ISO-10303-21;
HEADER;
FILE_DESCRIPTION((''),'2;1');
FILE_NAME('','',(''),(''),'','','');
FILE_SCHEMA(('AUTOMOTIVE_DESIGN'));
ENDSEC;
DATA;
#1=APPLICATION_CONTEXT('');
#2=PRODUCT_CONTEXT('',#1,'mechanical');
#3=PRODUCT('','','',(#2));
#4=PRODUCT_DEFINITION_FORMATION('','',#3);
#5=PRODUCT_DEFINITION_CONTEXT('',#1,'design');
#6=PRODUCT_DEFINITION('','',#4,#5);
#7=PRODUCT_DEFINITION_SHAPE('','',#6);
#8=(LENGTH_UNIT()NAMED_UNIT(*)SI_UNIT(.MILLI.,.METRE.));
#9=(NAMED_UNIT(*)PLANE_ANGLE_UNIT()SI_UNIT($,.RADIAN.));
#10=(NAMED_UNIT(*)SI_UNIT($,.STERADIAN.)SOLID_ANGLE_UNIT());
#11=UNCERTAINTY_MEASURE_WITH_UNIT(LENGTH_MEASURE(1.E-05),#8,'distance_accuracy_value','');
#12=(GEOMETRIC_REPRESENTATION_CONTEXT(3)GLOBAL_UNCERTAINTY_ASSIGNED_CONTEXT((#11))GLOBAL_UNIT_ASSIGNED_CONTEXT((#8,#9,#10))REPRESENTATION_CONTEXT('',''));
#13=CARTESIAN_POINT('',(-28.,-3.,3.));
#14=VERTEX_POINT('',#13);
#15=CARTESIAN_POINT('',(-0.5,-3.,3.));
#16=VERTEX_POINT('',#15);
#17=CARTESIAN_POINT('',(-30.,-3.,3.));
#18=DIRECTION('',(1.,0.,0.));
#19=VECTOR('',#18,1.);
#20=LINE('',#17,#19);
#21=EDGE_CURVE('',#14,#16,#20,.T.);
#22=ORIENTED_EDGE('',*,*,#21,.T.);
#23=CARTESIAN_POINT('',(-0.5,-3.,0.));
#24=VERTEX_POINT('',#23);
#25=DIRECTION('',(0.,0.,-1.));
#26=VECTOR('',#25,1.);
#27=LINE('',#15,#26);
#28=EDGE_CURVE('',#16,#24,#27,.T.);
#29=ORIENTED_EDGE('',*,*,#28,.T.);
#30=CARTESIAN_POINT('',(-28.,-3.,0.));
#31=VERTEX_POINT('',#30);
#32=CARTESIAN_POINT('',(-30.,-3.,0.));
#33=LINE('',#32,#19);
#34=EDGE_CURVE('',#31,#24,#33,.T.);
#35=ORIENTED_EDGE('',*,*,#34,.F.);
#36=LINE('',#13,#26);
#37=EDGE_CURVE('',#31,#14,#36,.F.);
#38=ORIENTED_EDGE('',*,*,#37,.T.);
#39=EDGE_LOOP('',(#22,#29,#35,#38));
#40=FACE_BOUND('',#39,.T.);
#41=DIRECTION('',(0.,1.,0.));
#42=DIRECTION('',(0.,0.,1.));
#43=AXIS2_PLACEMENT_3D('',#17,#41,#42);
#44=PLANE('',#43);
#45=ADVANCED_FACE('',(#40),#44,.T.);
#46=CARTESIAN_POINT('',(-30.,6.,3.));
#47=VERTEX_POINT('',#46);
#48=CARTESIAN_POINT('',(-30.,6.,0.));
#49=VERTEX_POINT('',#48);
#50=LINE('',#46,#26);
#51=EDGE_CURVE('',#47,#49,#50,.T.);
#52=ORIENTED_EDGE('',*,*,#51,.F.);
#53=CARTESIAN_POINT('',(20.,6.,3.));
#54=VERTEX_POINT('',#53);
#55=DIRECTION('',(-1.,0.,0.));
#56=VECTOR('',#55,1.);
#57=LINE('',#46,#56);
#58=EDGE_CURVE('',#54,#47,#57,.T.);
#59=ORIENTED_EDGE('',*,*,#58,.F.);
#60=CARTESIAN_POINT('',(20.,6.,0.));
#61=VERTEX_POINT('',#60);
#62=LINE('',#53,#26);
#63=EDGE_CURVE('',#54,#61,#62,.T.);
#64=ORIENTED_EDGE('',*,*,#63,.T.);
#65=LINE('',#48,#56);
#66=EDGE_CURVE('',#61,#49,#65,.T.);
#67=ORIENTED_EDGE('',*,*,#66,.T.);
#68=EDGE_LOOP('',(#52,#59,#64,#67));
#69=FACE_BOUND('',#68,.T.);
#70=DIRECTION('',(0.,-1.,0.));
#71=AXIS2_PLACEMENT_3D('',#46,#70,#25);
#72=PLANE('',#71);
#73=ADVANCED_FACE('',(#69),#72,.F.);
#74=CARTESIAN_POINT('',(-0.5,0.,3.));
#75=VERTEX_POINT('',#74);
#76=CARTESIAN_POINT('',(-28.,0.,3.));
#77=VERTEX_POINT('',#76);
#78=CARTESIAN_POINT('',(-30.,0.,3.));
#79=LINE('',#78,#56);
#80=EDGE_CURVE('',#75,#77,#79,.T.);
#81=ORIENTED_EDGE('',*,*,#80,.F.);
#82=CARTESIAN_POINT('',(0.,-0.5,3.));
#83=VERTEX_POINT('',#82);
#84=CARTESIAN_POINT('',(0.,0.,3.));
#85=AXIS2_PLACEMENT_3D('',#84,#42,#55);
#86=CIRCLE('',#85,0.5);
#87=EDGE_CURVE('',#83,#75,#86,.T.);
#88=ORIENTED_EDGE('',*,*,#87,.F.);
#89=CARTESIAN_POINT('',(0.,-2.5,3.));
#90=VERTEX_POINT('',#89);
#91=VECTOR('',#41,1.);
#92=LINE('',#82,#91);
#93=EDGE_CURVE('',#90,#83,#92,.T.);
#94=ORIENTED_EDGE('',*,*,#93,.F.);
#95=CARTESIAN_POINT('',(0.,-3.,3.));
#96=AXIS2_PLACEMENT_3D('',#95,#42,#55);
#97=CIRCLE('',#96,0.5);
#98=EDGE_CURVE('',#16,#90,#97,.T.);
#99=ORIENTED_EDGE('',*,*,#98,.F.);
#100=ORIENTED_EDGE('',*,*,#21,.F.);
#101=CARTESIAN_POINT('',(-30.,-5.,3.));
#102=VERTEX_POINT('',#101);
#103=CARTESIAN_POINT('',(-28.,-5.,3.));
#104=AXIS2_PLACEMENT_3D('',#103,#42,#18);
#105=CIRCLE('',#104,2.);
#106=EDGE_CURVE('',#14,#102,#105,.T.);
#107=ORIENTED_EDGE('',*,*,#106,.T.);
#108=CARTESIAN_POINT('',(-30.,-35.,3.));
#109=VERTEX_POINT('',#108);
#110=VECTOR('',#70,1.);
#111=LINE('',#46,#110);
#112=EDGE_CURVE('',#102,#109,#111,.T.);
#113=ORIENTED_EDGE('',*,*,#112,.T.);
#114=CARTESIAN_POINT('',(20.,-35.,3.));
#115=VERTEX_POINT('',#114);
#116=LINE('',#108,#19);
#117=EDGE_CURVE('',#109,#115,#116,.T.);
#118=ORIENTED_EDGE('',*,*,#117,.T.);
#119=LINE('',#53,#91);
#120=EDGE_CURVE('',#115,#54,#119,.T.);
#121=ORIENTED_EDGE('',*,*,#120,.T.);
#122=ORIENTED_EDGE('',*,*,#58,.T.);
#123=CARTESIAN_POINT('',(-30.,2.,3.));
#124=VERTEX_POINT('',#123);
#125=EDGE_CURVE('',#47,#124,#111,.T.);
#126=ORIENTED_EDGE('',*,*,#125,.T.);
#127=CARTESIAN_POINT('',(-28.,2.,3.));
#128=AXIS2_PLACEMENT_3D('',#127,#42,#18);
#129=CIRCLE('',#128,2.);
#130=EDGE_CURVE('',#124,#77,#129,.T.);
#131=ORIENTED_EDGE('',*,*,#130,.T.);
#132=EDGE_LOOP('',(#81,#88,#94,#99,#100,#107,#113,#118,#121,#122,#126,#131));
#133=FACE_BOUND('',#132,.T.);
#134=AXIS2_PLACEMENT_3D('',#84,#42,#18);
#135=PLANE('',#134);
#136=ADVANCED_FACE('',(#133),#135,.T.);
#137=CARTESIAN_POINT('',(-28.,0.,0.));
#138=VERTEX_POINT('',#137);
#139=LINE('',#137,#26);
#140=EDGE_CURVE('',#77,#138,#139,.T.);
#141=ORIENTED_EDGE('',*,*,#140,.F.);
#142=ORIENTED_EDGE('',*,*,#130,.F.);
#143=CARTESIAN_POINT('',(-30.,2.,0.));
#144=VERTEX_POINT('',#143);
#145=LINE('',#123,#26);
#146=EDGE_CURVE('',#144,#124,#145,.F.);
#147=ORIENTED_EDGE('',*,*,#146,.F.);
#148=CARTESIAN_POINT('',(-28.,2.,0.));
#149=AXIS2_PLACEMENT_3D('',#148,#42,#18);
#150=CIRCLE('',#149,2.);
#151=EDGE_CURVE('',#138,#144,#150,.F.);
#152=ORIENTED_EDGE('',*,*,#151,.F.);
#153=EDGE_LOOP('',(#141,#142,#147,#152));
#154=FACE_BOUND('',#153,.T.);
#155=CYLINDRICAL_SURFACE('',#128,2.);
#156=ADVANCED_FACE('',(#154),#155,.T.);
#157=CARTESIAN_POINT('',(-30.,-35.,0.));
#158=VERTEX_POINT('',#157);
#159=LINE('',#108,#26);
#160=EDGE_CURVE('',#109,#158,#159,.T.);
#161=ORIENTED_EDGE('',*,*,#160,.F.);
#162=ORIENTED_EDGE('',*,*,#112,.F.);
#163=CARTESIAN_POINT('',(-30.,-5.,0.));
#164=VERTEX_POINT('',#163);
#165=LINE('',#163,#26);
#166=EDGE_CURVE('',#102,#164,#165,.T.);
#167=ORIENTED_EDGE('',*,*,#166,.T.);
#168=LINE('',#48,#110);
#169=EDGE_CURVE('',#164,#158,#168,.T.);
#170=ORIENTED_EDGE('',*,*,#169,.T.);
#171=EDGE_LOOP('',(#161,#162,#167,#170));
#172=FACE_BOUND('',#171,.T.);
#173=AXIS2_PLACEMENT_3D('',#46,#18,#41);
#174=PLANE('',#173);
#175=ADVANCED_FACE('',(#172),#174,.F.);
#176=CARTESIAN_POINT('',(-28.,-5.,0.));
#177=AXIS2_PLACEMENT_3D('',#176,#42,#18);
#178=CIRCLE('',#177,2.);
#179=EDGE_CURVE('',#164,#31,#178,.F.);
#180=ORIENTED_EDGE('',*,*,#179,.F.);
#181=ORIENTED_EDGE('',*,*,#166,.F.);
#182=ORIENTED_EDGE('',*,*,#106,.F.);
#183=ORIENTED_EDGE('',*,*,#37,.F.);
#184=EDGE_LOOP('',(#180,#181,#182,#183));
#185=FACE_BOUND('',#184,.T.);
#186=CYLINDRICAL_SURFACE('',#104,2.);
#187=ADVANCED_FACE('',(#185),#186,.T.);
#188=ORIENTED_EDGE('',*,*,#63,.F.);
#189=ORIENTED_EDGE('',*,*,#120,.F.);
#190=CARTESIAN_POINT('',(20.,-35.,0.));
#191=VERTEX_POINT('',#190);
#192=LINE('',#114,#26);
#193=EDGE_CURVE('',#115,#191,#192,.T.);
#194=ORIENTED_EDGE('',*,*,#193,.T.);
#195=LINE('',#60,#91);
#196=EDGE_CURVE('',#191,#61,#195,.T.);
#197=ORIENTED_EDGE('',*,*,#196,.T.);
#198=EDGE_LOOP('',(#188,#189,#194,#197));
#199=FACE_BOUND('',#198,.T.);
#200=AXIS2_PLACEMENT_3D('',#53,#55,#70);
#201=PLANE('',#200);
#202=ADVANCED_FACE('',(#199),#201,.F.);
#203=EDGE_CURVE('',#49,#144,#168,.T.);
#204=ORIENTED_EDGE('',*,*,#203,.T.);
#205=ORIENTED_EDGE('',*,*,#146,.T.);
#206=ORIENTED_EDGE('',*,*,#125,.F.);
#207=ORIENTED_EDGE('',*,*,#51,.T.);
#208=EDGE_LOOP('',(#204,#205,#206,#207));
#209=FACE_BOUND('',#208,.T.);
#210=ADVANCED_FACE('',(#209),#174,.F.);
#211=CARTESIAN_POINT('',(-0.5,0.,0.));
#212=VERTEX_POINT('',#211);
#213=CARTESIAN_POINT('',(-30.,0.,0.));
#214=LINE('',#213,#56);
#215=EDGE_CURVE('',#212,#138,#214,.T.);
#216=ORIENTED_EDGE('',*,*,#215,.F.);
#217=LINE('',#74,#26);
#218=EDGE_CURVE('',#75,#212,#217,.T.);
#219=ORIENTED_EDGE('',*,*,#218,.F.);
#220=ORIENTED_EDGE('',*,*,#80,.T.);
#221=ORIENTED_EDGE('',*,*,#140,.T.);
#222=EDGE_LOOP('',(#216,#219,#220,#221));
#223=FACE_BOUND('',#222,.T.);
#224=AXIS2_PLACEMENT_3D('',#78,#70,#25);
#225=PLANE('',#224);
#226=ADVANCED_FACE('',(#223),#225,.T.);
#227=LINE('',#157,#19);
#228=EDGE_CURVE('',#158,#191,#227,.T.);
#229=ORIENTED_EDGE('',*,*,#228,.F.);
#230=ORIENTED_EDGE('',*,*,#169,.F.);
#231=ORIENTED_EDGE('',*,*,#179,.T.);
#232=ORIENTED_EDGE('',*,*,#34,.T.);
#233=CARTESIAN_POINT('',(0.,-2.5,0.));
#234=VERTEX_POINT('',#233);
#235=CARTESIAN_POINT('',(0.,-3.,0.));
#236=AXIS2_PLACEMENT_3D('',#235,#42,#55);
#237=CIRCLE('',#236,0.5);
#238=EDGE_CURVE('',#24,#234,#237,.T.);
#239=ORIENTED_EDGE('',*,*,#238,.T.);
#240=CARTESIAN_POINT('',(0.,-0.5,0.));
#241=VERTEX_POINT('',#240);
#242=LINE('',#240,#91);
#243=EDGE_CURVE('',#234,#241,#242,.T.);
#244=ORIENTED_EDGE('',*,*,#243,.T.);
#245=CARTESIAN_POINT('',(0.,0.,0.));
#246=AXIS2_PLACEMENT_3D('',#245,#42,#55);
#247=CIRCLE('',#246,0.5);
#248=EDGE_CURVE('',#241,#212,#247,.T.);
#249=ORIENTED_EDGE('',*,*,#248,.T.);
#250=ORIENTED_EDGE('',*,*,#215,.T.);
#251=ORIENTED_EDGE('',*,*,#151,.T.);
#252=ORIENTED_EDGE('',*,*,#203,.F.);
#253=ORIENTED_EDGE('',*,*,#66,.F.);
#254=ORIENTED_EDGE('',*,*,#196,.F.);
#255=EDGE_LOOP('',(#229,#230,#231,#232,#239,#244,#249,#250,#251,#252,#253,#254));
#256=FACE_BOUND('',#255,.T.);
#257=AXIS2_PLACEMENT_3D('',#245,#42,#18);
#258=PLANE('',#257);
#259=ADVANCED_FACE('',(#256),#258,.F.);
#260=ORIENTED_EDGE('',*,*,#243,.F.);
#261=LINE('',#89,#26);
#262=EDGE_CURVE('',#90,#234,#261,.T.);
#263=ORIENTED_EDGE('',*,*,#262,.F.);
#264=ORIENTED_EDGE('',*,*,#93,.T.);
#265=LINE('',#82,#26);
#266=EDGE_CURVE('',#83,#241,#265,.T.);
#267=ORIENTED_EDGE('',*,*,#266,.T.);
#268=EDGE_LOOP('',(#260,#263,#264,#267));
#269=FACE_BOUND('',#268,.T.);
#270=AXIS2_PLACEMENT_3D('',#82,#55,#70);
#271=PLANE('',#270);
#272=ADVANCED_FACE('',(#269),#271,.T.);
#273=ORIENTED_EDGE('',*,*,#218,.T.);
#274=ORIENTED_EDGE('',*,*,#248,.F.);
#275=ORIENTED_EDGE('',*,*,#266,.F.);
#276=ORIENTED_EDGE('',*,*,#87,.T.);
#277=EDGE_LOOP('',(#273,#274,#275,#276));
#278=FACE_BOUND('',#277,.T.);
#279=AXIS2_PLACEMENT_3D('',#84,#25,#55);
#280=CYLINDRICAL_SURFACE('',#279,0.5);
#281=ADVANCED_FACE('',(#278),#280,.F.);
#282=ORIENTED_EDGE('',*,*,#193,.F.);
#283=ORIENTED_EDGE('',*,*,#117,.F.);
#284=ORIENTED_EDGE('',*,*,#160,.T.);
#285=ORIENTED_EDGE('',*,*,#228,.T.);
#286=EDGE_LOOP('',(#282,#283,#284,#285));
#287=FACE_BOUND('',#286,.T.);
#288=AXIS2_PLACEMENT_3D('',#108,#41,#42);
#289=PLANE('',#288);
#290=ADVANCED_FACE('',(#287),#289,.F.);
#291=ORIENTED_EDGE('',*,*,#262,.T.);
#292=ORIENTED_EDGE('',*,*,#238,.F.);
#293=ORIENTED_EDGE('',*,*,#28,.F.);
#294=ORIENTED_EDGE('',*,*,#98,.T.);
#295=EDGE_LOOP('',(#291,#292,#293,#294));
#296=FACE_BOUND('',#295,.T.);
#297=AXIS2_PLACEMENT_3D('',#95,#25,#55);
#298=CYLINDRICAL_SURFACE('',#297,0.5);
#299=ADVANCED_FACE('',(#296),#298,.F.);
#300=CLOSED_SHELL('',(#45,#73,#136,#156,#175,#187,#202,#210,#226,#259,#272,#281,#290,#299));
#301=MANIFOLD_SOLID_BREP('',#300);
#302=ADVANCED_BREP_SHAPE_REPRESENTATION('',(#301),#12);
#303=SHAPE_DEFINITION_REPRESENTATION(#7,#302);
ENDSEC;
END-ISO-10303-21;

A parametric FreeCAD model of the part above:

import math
import FreeCAD as App
import Part
import Sketcher


def edges_at(feature, points):
    """Names of the edges that pass closest to the given points."""
    edges = feature.Shape.Edges
    near = lambda p: min(range(len(edges)), key=lambda i: edges[i].distToShape(Part.Vertex(*p))[0])
    return sorted({f"Edge{near(p) + 1}" for p in points})


def add_polygon(sketch, points):
    """Adds a closed chain of lines whose ends are joined by coincident constraints."""
    first, n = sketch.GeometryCount, len(points)
    for a, b in zip(points, points[1:] + points[:1]):
        sketch.addGeometry(Part.LineSegment(App.Vector(*a, 0), App.Vector(*b, 0)), False)
    for i in range(n):
        sketch.addConstraint(Sketcher.Constraint("Coincident", first + i, 2, first + (i + 1) % n, 1))

doc = App.newDocument("Part")
body = doc.addObject("PartDesign::Body", "Body")

# Sketch on XY plane
sketch1 = body.newObject("Sketcher::SketchObject", "Sketch")
sketch1.AttachmentSupport = (doc.getObject("XY_Plane"), [""])
sketch1.MapMode = "FlatFace"
add_polygon(sketch1, [(-30, 6), (-30, -35), (20, -35), (20, 6)])  # lines 0-3
sketch1.addConstraint([
    Sketcher.Constraint("Vertical", 0),
    Sketcher.Constraint("Horizontal", 1),
    Sketcher.Constraint("Vertical", 2),
    Sketcher.Constraint("Horizontal", 3),
    Sketcher.Constraint("DistanceX", 1, 1, 1, 2, 50.0),
    Sketcher.Constraint("DistanceY", 0, 2, 0, 1, 41.0),
    Sketcher.Constraint("DistanceX", 0, 2, -1, 1, 30.0),
    Sketcher.Constraint("DistanceY", 0, 2, -1, 1, 35.0),
])
pad1 = body.newObject("PartDesign::Pad", "Pad")
pad1.Profile = sketch1
pad1.Length = 3

# Sketch on XY plane
sketch2 = body.newObject("Sketcher::SketchObject", "Sketch001")
sketch2.AttachmentSupport = (doc.getObject("XY_Plane"), [""])
sketch2.MapMode = "FlatFace"
sketch2.addGeometry([
    Part.LineSegment(App.Vector(-0.5, 0, 0), App.Vector(-30, 0, 0)),  # 0
    Part.LineSegment(App.Vector(-30, 0, 0), App.Vector(-30, -3, 0)),  # 1
    Part.LineSegment(App.Vector(-30, -3, 0), App.Vector(-0.5, -3, 0)),  # 2
    Part.ArcOfCircle(Part.Circle(App.Vector(0, -3, 0), App.Vector(0, 0, 1), 0.5), math.radians(180), math.radians(450)),  # 3
    Part.LineSegment(App.Vector(0, -2.5, 0), App.Vector(0, -0.5, 0)),  # 4
    Part.ArcOfCircle(Part.Circle(App.Vector(0, 0, 0), App.Vector(0, 0, 1), 0.5), math.radians(-90), math.radians(180)),  # 5
], False)
sketch2.addConstraint([
    Sketcher.Constraint("Coincident", 0, 2, 1, 1),
    Sketcher.Constraint("Coincident", 1, 2, 2, 1),
    Sketcher.Constraint("Coincident", 2, 2, 3, 1),
    Sketcher.Constraint("Coincident", 3, 2, 4, 1),
    Sketcher.Constraint("Coincident", 4, 2, 5, 1),
    Sketcher.Constraint("Coincident", 5, 2, 0, 1),
    Sketcher.Constraint("Horizontal", 0),
    Sketcher.Constraint("Vertical", 1),
    Sketcher.Constraint("Horizontal", 2),
    Sketcher.Constraint("Vertical", 4),
    Sketcher.Constraint("Coincident", 5, 3, -1, 1),
    Sketcher.Constraint("Equal", 3, 5),
    Sketcher.Constraint("PointOnObject", 3, 3, -2),
    Sketcher.Constraint("PointOnObject", 0, 2, -1),
    Sketcher.Constraint("PointOnObject", 3, 2, -2),
    Sketcher.Constraint("Horizontal", 3, 3, 1, 2),
    Sketcher.Constraint("Radius", 3, 0.5),
    Sketcher.Constraint("DistanceY", 1, 2, 1, 1, 3.0),
    Sketcher.Constraint("DistanceX", 0, 2, 0, 1, 29.5),
])
pocket1 = body.newObject("PartDesign::Pocket", "Pocket")
pocket1.Profile = sketch2
pocket1.Type = "ThroughAll"
pocket1.Reversed = True
doc.recompute()

fillet = body.newObject("PartDesign::Fillet", "Fillet")
fillet.Base = (pocket1, edges_at(pocket1, [(-30, 0, 1.5), (-30, -3, 1.5)]))
fillet.Radius = 2

doc.recompute()
